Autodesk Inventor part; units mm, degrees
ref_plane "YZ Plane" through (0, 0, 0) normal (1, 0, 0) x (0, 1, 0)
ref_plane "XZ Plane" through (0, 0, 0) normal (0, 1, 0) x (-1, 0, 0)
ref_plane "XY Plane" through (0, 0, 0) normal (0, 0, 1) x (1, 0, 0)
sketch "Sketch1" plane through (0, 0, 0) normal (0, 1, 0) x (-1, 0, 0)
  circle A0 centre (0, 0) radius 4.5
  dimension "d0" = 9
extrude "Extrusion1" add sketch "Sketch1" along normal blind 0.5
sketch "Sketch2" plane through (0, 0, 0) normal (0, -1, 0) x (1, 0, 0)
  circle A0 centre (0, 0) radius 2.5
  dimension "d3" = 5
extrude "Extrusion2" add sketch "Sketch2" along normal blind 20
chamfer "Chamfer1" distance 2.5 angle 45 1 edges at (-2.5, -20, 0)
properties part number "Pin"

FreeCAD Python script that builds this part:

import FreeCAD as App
import Part
import Sketcher


def edges_at(feature, points):
    """Names of the edges that pass closest to the given points."""
    edges = feature.Shape.Edges
    near = lambda p: min(range(len(edges)), key=lambda i: edges[i].distToShape(Part.Vertex(*p))[0])
    return sorted({f"Edge{near(p) + 1}" for p in points})

doc = App.newDocument("Part")
body = doc.addObject("PartDesign::Body", "Body")

# Sketch on XZ plane
sketch1 = doc.addObject("Sketcher::SketchObject", "Sketch")
body.addObject(sketch1)
sketch1.AttachmentSupport = (doc.XZ_Plane, [""])
sketch1.MapMode = "FlatFace"
sketch1.addGeometry(Part.Circle(App.Vector(0, 0, 0), App.Vector(0, 0, 1), 4.5), False)
sketch1.addConstraint([
    Sketcher.Constraint("Coincident", 0, 3, -1, 1),
    Sketcher.Constraint("Diameter", 0, 9.0),
])
pad1 = doc.addObject("PartDesign::Pad", "Pad")
body.addObject(pad1)
pad1.Profile = sketch1
pad1.Length = 0.5
pad1.Reversed = True

# Sketch on XZ plane
sketch2 = doc.addObject("Sketcher::SketchObject", "Sketch001")
body.addObject(sketch2)
sketch2.AttachmentSupport = (doc.XZ_Plane, [""])
sketch2.MapMode = "FlatFace"
sketch2.addGeometry(Part.Circle(App.Vector(0, 0, 0), App.Vector(0, 0, 1), 2.5), False)
sketch2.addConstraint([
    Sketcher.Constraint("Coincident", 0, 3, -1, 1),
    Sketcher.Constraint("Diameter", 0, 5.0),
])
pad2 = doc.addObject("PartDesign::Pad", "Pad001")
body.addObject(pad2)
pad2.Profile = sketch2
pad2.Length = 20
doc.recompute()

chamfer = doc.addObject("PartDesign::Chamfer", "Chamfer")
body.addObject(chamfer)
chamfer.Base = (pad2, edges_at(pad2, [(-2.5, -20, 0)]))
chamfer.Size = 2.5

doc.recompute()
